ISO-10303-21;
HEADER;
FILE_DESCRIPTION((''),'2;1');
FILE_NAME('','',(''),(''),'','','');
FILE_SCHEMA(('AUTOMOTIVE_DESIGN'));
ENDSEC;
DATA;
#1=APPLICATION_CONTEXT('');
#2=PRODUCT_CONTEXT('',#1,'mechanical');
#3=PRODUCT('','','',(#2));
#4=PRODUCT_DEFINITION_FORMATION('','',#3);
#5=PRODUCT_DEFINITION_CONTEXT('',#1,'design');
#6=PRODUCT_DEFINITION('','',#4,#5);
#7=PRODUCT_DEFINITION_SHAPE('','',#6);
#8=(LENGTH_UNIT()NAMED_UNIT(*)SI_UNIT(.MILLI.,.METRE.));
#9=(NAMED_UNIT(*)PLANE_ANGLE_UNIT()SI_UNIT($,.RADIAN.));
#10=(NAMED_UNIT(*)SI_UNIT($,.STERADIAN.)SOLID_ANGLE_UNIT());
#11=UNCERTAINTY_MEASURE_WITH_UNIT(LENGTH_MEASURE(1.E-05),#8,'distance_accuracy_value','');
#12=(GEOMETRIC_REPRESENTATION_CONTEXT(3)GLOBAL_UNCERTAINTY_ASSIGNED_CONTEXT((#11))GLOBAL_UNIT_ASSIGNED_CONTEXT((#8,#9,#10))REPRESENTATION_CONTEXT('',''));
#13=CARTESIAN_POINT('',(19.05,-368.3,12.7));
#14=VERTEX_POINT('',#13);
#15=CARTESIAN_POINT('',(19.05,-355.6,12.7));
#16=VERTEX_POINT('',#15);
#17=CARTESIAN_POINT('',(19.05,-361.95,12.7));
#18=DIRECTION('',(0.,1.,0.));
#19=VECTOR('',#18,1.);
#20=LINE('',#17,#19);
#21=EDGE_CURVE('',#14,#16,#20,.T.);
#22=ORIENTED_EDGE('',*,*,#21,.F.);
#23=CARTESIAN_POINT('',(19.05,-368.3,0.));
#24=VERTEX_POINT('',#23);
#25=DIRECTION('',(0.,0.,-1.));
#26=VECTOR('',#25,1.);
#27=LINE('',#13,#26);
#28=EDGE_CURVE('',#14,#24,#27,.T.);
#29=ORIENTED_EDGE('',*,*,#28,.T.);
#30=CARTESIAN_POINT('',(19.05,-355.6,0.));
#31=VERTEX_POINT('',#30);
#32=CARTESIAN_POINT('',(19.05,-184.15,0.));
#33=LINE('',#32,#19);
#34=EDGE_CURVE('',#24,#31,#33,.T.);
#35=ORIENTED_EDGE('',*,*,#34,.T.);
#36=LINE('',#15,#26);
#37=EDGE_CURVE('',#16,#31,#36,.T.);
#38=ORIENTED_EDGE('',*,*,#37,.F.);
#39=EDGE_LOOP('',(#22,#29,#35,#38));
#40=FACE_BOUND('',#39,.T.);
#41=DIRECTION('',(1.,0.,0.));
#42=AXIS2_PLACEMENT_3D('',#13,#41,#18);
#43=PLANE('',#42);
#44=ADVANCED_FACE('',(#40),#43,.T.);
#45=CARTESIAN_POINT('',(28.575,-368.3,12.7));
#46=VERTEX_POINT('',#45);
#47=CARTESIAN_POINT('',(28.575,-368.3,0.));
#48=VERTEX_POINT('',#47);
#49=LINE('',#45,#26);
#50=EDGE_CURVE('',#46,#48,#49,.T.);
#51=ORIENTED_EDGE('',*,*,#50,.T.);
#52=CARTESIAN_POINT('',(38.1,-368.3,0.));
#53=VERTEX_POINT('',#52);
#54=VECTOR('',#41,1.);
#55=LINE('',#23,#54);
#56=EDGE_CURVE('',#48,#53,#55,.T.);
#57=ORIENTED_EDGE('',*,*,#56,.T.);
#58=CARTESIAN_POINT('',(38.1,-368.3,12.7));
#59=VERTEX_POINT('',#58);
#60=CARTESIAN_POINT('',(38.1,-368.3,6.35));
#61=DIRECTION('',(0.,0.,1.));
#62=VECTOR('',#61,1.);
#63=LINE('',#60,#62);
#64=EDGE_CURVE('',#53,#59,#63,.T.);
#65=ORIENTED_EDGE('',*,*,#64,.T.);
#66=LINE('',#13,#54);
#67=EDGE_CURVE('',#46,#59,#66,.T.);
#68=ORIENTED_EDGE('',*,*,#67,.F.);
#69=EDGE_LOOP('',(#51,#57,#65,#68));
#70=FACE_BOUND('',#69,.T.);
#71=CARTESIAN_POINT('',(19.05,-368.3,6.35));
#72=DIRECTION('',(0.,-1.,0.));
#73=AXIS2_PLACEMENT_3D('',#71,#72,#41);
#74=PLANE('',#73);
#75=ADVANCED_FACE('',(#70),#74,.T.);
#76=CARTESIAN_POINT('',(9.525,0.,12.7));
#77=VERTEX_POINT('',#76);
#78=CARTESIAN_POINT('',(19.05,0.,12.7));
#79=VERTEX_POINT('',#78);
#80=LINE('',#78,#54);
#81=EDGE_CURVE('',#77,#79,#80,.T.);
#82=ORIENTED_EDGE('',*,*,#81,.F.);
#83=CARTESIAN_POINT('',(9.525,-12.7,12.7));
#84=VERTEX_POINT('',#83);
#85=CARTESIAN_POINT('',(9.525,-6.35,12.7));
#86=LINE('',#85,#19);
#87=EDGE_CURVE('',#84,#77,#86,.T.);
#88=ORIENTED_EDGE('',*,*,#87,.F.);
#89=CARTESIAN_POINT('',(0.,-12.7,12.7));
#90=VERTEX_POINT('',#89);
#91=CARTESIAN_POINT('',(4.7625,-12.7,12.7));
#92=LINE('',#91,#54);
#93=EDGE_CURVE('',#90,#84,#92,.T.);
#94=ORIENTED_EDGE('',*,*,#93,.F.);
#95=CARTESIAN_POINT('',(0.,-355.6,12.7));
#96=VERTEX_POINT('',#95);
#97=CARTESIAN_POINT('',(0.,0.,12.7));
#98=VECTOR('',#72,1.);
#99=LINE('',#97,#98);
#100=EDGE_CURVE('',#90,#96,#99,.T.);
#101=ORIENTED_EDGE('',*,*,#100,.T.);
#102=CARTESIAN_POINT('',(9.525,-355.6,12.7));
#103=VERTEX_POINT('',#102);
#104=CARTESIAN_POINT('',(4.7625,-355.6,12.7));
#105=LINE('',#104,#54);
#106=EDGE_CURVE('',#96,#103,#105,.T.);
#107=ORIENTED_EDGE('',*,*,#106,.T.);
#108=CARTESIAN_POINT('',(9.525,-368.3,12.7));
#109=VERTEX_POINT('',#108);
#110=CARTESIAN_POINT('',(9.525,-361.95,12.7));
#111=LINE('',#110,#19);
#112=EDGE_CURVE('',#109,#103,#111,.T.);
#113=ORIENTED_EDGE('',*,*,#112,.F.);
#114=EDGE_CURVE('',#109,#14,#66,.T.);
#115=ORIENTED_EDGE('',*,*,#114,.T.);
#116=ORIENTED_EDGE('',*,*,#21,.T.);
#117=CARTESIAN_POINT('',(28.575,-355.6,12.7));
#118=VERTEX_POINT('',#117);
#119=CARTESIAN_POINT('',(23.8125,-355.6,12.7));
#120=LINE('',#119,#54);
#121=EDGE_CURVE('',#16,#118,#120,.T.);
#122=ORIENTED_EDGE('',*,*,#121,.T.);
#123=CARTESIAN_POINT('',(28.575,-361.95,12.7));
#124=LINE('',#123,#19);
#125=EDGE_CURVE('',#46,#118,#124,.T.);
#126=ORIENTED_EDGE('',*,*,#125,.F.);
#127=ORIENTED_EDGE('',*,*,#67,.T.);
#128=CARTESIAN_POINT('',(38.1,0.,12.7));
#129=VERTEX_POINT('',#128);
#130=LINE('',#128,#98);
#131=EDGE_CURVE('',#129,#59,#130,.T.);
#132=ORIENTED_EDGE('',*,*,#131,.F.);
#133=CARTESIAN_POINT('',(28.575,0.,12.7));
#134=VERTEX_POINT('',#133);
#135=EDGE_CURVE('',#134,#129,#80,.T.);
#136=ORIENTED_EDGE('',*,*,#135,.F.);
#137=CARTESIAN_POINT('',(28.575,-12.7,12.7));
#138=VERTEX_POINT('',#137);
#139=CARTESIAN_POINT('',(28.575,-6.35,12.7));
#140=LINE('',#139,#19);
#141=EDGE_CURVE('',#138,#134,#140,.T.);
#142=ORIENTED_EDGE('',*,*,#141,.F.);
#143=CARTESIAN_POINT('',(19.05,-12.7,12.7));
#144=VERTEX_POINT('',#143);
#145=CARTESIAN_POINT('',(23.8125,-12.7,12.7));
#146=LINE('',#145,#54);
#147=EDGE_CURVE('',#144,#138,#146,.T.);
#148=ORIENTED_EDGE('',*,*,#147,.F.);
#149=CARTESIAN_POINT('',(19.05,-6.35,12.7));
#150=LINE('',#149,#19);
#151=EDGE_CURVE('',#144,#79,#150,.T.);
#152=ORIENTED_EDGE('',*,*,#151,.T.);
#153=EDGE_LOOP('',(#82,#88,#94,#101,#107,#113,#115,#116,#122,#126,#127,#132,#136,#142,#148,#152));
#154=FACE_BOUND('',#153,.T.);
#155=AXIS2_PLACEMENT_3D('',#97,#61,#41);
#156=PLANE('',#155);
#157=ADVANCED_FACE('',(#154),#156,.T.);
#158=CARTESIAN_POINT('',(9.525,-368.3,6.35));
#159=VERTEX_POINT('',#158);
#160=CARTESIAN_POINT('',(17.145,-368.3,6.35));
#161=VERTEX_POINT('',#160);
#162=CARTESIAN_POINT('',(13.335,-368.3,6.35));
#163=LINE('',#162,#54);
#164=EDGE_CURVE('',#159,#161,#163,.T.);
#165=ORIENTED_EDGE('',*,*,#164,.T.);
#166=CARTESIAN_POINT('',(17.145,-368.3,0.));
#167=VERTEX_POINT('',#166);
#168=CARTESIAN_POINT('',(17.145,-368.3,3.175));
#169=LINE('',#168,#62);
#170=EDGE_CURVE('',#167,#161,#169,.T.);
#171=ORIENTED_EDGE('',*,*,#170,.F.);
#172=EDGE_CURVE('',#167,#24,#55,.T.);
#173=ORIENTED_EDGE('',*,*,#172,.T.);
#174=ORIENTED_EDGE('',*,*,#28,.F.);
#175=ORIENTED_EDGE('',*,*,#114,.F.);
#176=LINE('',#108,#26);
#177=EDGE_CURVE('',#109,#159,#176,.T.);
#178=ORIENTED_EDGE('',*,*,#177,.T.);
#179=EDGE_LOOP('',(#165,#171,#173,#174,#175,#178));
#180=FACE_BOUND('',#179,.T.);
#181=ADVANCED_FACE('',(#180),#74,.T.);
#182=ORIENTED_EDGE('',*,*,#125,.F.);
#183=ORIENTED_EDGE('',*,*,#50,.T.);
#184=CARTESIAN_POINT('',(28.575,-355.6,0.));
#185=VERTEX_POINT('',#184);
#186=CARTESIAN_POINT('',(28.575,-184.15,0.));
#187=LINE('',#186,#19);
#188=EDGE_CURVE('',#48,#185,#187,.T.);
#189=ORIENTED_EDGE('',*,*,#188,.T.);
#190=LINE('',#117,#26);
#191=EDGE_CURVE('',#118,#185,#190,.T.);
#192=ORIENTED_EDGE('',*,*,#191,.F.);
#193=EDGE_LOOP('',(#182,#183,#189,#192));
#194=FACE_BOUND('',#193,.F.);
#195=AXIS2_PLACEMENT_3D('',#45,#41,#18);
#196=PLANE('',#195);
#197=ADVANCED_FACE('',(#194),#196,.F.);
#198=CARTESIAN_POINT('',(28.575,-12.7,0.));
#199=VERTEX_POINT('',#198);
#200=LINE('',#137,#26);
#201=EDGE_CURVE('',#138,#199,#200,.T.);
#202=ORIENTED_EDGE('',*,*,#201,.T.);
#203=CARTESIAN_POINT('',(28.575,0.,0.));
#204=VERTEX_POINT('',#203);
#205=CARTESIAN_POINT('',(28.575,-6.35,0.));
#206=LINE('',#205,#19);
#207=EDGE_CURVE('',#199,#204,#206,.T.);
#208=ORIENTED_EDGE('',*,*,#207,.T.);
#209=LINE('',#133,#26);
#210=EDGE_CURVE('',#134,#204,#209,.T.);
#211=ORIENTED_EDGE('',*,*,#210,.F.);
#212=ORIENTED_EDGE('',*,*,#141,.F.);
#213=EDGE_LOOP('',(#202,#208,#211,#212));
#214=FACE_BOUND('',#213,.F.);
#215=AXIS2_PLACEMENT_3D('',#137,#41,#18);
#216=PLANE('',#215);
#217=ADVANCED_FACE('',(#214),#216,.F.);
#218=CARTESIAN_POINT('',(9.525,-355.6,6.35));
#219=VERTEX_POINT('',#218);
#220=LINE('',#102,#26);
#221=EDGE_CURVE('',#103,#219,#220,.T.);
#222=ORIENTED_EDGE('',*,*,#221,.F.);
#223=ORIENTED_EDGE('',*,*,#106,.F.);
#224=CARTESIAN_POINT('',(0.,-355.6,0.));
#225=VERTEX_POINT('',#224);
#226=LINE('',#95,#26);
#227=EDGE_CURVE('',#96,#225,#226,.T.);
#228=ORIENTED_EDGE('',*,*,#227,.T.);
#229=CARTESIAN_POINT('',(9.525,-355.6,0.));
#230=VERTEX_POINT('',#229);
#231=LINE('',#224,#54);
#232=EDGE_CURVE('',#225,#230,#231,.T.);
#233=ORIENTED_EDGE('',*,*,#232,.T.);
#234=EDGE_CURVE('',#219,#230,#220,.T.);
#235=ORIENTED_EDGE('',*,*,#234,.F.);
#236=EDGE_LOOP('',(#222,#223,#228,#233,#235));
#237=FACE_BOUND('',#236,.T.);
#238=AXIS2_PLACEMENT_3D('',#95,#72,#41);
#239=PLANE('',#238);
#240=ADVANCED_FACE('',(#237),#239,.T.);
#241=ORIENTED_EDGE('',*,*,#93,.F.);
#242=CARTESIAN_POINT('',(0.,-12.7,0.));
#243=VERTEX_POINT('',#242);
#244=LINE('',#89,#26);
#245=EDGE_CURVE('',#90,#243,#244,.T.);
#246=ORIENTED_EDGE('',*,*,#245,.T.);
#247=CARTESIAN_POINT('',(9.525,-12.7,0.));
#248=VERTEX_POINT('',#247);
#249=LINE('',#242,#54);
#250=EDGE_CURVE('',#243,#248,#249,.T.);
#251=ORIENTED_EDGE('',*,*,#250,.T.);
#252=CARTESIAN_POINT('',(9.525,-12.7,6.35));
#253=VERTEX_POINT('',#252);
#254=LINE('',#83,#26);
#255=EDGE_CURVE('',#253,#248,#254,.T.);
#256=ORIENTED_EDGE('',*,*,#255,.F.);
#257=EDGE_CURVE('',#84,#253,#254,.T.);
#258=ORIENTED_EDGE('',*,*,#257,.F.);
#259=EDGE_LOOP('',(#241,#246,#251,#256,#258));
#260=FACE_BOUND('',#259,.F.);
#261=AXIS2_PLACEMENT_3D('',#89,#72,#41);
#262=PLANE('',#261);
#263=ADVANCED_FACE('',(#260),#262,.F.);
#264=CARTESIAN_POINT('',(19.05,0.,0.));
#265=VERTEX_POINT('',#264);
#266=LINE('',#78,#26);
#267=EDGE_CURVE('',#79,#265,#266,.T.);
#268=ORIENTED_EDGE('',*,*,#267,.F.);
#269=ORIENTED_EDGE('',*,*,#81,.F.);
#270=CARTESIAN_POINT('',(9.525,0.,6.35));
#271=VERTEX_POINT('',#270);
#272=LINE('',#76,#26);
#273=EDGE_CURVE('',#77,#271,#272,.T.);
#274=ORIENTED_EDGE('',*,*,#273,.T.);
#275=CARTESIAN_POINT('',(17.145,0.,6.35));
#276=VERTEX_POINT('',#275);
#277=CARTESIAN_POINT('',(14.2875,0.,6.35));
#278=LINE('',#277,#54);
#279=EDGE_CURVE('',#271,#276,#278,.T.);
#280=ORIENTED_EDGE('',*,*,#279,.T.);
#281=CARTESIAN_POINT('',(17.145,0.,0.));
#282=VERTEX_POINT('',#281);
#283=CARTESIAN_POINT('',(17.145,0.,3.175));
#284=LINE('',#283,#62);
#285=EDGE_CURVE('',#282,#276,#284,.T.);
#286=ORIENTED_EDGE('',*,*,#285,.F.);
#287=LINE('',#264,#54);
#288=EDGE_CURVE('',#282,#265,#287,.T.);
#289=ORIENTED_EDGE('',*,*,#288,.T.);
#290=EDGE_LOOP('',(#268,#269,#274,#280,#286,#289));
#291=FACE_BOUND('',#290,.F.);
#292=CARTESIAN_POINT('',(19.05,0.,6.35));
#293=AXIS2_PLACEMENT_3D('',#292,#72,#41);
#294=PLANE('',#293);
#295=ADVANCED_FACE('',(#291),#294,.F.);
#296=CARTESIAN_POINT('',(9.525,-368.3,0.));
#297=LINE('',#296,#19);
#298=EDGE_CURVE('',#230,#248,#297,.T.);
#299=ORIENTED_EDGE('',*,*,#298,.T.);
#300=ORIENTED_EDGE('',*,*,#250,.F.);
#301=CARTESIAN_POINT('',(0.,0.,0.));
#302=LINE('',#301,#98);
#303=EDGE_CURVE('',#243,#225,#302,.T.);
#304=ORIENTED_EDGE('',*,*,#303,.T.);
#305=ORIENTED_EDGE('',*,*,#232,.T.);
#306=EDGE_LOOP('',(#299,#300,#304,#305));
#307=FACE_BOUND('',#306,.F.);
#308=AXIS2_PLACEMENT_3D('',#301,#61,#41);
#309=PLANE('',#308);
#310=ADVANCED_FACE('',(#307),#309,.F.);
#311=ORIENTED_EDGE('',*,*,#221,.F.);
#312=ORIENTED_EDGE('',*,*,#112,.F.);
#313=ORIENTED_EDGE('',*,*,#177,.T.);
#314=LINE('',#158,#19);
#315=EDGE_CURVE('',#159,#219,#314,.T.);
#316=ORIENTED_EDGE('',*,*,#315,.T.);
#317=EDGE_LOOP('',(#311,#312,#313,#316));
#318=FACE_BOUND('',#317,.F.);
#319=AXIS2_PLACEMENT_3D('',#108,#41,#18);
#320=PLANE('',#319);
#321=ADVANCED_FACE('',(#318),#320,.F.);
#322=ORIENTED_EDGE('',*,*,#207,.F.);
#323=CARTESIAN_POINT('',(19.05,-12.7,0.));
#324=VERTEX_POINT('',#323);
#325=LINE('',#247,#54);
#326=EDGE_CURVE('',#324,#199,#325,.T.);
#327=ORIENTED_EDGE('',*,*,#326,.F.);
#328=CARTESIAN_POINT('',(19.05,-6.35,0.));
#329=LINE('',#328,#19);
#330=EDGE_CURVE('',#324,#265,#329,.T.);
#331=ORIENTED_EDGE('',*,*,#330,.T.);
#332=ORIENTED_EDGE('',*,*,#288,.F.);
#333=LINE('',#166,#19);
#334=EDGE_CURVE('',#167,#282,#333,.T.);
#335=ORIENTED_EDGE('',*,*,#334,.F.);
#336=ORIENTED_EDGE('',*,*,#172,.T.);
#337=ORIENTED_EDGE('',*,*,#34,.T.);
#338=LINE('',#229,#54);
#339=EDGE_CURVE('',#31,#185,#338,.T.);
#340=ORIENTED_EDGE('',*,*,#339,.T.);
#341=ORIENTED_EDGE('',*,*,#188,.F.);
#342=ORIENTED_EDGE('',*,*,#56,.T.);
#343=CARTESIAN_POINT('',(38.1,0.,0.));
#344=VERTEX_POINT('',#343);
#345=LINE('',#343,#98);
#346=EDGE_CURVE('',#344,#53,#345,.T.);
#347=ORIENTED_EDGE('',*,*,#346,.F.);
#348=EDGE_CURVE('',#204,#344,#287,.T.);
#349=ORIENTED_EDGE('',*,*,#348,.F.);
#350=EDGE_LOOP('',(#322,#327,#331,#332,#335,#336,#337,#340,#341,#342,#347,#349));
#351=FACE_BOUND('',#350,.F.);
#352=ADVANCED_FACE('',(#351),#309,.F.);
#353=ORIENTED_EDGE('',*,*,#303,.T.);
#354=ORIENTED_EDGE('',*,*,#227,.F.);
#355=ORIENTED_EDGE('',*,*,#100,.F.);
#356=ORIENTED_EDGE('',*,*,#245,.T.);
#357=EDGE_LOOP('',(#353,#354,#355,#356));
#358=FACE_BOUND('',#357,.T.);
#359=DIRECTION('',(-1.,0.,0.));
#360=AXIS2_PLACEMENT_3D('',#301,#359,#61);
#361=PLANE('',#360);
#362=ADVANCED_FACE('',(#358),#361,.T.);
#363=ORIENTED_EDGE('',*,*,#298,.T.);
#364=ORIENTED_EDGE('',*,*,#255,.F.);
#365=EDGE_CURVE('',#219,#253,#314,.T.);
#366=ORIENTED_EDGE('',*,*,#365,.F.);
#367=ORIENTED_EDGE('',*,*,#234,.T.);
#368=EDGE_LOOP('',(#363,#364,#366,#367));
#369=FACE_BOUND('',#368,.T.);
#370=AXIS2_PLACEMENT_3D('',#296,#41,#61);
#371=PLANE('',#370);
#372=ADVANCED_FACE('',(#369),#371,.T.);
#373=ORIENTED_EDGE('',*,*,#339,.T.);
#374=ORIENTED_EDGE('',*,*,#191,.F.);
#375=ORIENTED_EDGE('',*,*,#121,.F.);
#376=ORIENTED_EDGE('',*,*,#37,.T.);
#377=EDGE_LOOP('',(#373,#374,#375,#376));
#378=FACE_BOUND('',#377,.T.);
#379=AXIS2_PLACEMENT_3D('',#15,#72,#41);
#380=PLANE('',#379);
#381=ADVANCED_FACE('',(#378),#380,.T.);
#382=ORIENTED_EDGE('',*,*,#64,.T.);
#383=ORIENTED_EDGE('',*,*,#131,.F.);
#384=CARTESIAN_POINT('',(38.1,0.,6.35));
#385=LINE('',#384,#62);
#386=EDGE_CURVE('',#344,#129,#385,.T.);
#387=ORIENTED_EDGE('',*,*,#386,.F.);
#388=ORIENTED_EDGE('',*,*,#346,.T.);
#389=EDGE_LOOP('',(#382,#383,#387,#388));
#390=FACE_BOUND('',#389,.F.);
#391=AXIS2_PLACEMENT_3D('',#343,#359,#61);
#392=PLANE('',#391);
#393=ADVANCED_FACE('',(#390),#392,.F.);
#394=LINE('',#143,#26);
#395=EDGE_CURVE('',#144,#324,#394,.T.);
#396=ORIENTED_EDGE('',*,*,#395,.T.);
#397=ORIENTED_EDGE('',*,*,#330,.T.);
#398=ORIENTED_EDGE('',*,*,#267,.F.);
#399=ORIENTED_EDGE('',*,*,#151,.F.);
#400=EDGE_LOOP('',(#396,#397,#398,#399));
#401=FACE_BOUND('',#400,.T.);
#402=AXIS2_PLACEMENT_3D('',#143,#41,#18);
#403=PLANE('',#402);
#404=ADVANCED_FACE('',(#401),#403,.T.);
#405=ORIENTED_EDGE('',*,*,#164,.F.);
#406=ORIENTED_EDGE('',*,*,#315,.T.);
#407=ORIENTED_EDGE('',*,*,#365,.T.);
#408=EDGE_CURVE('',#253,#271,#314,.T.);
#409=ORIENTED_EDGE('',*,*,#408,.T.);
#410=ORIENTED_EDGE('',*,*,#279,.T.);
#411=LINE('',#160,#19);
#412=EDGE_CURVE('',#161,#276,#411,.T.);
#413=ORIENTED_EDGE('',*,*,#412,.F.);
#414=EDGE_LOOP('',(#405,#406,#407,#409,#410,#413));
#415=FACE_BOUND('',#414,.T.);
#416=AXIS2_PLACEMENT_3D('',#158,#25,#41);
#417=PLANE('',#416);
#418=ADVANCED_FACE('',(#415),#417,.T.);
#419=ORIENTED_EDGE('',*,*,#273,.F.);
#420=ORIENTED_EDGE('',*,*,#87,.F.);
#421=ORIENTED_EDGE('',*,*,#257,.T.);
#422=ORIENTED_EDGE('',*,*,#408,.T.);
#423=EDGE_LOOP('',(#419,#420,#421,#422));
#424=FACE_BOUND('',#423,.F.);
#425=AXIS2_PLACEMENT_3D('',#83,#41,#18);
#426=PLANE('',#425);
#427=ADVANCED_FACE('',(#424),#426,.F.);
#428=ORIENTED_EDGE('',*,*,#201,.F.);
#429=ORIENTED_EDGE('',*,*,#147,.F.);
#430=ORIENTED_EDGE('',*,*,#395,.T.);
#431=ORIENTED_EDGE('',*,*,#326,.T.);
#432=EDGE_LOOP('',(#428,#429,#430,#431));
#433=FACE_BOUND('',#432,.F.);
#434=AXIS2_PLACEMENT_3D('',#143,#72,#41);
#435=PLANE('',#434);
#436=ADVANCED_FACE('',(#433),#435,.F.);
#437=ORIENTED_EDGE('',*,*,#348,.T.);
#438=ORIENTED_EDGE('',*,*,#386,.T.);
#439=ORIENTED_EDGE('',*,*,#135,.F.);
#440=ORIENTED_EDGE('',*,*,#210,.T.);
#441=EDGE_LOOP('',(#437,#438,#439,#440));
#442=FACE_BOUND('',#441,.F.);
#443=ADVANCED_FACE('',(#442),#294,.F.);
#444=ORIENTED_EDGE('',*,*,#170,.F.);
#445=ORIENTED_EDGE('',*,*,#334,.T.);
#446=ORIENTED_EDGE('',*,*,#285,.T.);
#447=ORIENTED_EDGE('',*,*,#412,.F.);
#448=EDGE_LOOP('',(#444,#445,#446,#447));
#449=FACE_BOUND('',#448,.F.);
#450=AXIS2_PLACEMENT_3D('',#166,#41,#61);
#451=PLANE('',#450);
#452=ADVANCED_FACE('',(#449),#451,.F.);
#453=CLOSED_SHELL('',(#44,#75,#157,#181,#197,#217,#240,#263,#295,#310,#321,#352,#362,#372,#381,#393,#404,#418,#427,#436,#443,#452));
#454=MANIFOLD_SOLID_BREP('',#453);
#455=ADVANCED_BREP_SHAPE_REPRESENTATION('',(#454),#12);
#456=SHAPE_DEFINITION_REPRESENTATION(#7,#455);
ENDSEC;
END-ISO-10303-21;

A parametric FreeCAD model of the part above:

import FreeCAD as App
import Part
import Sketcher
Q = App.Units.Quantity


def add_polygon(sketch, points):
    """Adds a closed chain of lines whose ends are joined by coincident constraints."""
    first, n = sketch.GeometryCount, len(points)
    for a, b in zip(points, points[1:] + points[:1]):
        sketch.addGeometry(Part.LineSegment(App.Vector(*a, 0), App.Vector(*b, 0)), False)
    for i in range(n):
        sketch.addConstraint(Sketcher.Constraint("Coincident", first + i, 2, first + (i + 1) % n, 1))

doc = App.newDocument("Part")
body = doc.addObject("PartDesign::Body", "Body")

sketch1 = body.newObject("Sketcher::SketchObject", "Sketch")
sketch1.AttachmentSupport = (doc.getObject("XZ_Plane"), [""])
sketch1.MapMode = "FlatFace"
add_polygon(sketch1, [(0, 13), (0, 0), (38, 0), (38, 13)])
sketch1.addConstraint([
    Sketcher.Constraint("Vertical", 0),
    Sketcher.Constraint("Horizontal", 1),
    Sketcher.Constraint("Vertical", 2),
    Sketcher.Constraint("Horizontal", 3),
    Sketcher.Constraint("Coincident", 0, 2, -1, 1),
    Sketcher.Constraint("DistanceX", 1, 1, 1, 2, Q("1.5 in")),
    Sketcher.Constraint("DistanceY", 0, 2, 0, 1, Q("0.5 in")),
])
pad1 = body.newObject("PartDesign::Pad", "Pad")
pad1.Profile = sketch1
pad1.Length = Q("14.5 in")

sketch2 = body.newObject("Sketcher::SketchObject", "Sketch001")
sketch2.AttachmentSupport = (doc.getObject("XZ_Plane"), [""])
sketch2.MapMode = "FlatFace"
sketch2.AttachmentOffset = App.Placement(App.Vector(0, 0, 14.5 * 25.4), App.Rotation())
add_polygon(sketch2, [(10, 6), (10, 0), (17, 0), (17, 6)])
sketch2.addConstraint([
    Sketcher.Constraint("Vertical", 0),
    Sketcher.Constraint("Horizontal", 1),
    Sketcher.Constraint("Vertical", 2),
    Sketcher.Constraint("Horizontal", 3),
    Sketcher.Constraint("PointOnObject", 0, 2, -1),
    Sketcher.Constraint("DistanceX", 1, 1, 1, 2, Q("0.3 in")),
    Sketcher.Constraint("DistanceY", 0, 2, 0, 1, Q("0.25 in")),
    Sketcher.Constraint("DistanceX", -1, 1, 0, 2, Q("0.375 in")),
])
pocket1 = body.newObject("PartDesign::Pocket", "Pocket")
pocket1.Profile = sketch2
pocket1.Type = "ThroughAll"

sketch3 = body.newObject("Sketcher::SketchObject", "Sketch002")
sketch3.AttachmentSupport = (doc.getObject("XY_Plane"), [""])
sketch3.MapMode = "FlatFace"
sketch3.AttachmentOffset = App.Placement(App.Vector(0, 0, 0.5 * 25.4), App.Rotation())
add_polygon(sketch3, [(19, 0), (19, -13), (29, -13), (29, 0)])
add_polygon(sketch3, [(0, 0), (0, -13), (10, -13), (10, 0)])
add_polygon(sketch3, [(0, -356), (0, -368), (10, -368), (10, -356)])
add_polygon(sketch3, [(19, -356), (19, -368), (29, -368), (29, -356)])
sketch3.addConstraint([
    Sketcher.Constraint("Vertical", 0),
    Sketcher.Constraint("Horizontal", 1),
    Sketcher.Constraint("Vertical", 2),
    Sketcher.Constraint("Horizontal", 3),
    Sketcher.Constraint("Vertical", 4),
    Sketcher.Constraint("Horizontal", 5),
    Sketcher.Constraint("Vertical", 6),
    Sketcher.Constraint("Horizontal", 7),
    Sketcher.Constraint("Vertical", 8),
    Sketcher.Constraint("Horizontal", 9),
    Sketcher.Constraint("Vertical", 10),
    Sketcher.Constraint("Horizontal", 11),
    Sketcher.Constraint("Vertical", 12),
    Sketcher.Constraint("Horizontal", 13),
    Sketcher.Constraint("Vertical", 14),
    Sketcher.Constraint("Horizontal", 15),
    Sketcher.Constraint("Coincident", 7, 2, -1, 1),
    Sketcher.Constraint("PointOnObject", 2, 2, -1),
    Sketcher.Constraint("PointOnObject", 8, 2, -2),
    Sketcher.Constraint("Horizontal", 1, 2, 4, 2),
    Sketcher.Constraint("Horizontal", 9, 2, 12, 2),
    Sketcher.Constraint("Horizontal", 11, 2, 14, 2),
    Sketcher.Constraint("Vertical", 6, 2, 9, 2),
    Sketcher.Constraint("Vertical", 3, 2, 12, 2),
    Sketcher.Constraint("Vertical", 2, 2, 13, 2),
    Sketcher.Constraint("Equal", 3, 5),
    Sketcher.Constraint("Equal", 6, 8),
    Sketcher.Constraint("DistanceY", 0, 2, 0, 1, Q("0.5 in")),
    Sketcher.Constraint("DistanceY", 10, 2, -1, 1, Q("14 in")),
    Sketcher.Constraint("DistanceX", 1, 1, 1, 2, Q("0.375 in")),
    Sketcher.Constraint("DistanceX", -1, 1, 0, 2, Q("0.75 in")),
])
pocket2 = body.newObject("PartDesign::Pocket", "Pocket001")
pocket2.Profile = sketch3
pocket2.Length = Q("1 in")

doc.recompute()
